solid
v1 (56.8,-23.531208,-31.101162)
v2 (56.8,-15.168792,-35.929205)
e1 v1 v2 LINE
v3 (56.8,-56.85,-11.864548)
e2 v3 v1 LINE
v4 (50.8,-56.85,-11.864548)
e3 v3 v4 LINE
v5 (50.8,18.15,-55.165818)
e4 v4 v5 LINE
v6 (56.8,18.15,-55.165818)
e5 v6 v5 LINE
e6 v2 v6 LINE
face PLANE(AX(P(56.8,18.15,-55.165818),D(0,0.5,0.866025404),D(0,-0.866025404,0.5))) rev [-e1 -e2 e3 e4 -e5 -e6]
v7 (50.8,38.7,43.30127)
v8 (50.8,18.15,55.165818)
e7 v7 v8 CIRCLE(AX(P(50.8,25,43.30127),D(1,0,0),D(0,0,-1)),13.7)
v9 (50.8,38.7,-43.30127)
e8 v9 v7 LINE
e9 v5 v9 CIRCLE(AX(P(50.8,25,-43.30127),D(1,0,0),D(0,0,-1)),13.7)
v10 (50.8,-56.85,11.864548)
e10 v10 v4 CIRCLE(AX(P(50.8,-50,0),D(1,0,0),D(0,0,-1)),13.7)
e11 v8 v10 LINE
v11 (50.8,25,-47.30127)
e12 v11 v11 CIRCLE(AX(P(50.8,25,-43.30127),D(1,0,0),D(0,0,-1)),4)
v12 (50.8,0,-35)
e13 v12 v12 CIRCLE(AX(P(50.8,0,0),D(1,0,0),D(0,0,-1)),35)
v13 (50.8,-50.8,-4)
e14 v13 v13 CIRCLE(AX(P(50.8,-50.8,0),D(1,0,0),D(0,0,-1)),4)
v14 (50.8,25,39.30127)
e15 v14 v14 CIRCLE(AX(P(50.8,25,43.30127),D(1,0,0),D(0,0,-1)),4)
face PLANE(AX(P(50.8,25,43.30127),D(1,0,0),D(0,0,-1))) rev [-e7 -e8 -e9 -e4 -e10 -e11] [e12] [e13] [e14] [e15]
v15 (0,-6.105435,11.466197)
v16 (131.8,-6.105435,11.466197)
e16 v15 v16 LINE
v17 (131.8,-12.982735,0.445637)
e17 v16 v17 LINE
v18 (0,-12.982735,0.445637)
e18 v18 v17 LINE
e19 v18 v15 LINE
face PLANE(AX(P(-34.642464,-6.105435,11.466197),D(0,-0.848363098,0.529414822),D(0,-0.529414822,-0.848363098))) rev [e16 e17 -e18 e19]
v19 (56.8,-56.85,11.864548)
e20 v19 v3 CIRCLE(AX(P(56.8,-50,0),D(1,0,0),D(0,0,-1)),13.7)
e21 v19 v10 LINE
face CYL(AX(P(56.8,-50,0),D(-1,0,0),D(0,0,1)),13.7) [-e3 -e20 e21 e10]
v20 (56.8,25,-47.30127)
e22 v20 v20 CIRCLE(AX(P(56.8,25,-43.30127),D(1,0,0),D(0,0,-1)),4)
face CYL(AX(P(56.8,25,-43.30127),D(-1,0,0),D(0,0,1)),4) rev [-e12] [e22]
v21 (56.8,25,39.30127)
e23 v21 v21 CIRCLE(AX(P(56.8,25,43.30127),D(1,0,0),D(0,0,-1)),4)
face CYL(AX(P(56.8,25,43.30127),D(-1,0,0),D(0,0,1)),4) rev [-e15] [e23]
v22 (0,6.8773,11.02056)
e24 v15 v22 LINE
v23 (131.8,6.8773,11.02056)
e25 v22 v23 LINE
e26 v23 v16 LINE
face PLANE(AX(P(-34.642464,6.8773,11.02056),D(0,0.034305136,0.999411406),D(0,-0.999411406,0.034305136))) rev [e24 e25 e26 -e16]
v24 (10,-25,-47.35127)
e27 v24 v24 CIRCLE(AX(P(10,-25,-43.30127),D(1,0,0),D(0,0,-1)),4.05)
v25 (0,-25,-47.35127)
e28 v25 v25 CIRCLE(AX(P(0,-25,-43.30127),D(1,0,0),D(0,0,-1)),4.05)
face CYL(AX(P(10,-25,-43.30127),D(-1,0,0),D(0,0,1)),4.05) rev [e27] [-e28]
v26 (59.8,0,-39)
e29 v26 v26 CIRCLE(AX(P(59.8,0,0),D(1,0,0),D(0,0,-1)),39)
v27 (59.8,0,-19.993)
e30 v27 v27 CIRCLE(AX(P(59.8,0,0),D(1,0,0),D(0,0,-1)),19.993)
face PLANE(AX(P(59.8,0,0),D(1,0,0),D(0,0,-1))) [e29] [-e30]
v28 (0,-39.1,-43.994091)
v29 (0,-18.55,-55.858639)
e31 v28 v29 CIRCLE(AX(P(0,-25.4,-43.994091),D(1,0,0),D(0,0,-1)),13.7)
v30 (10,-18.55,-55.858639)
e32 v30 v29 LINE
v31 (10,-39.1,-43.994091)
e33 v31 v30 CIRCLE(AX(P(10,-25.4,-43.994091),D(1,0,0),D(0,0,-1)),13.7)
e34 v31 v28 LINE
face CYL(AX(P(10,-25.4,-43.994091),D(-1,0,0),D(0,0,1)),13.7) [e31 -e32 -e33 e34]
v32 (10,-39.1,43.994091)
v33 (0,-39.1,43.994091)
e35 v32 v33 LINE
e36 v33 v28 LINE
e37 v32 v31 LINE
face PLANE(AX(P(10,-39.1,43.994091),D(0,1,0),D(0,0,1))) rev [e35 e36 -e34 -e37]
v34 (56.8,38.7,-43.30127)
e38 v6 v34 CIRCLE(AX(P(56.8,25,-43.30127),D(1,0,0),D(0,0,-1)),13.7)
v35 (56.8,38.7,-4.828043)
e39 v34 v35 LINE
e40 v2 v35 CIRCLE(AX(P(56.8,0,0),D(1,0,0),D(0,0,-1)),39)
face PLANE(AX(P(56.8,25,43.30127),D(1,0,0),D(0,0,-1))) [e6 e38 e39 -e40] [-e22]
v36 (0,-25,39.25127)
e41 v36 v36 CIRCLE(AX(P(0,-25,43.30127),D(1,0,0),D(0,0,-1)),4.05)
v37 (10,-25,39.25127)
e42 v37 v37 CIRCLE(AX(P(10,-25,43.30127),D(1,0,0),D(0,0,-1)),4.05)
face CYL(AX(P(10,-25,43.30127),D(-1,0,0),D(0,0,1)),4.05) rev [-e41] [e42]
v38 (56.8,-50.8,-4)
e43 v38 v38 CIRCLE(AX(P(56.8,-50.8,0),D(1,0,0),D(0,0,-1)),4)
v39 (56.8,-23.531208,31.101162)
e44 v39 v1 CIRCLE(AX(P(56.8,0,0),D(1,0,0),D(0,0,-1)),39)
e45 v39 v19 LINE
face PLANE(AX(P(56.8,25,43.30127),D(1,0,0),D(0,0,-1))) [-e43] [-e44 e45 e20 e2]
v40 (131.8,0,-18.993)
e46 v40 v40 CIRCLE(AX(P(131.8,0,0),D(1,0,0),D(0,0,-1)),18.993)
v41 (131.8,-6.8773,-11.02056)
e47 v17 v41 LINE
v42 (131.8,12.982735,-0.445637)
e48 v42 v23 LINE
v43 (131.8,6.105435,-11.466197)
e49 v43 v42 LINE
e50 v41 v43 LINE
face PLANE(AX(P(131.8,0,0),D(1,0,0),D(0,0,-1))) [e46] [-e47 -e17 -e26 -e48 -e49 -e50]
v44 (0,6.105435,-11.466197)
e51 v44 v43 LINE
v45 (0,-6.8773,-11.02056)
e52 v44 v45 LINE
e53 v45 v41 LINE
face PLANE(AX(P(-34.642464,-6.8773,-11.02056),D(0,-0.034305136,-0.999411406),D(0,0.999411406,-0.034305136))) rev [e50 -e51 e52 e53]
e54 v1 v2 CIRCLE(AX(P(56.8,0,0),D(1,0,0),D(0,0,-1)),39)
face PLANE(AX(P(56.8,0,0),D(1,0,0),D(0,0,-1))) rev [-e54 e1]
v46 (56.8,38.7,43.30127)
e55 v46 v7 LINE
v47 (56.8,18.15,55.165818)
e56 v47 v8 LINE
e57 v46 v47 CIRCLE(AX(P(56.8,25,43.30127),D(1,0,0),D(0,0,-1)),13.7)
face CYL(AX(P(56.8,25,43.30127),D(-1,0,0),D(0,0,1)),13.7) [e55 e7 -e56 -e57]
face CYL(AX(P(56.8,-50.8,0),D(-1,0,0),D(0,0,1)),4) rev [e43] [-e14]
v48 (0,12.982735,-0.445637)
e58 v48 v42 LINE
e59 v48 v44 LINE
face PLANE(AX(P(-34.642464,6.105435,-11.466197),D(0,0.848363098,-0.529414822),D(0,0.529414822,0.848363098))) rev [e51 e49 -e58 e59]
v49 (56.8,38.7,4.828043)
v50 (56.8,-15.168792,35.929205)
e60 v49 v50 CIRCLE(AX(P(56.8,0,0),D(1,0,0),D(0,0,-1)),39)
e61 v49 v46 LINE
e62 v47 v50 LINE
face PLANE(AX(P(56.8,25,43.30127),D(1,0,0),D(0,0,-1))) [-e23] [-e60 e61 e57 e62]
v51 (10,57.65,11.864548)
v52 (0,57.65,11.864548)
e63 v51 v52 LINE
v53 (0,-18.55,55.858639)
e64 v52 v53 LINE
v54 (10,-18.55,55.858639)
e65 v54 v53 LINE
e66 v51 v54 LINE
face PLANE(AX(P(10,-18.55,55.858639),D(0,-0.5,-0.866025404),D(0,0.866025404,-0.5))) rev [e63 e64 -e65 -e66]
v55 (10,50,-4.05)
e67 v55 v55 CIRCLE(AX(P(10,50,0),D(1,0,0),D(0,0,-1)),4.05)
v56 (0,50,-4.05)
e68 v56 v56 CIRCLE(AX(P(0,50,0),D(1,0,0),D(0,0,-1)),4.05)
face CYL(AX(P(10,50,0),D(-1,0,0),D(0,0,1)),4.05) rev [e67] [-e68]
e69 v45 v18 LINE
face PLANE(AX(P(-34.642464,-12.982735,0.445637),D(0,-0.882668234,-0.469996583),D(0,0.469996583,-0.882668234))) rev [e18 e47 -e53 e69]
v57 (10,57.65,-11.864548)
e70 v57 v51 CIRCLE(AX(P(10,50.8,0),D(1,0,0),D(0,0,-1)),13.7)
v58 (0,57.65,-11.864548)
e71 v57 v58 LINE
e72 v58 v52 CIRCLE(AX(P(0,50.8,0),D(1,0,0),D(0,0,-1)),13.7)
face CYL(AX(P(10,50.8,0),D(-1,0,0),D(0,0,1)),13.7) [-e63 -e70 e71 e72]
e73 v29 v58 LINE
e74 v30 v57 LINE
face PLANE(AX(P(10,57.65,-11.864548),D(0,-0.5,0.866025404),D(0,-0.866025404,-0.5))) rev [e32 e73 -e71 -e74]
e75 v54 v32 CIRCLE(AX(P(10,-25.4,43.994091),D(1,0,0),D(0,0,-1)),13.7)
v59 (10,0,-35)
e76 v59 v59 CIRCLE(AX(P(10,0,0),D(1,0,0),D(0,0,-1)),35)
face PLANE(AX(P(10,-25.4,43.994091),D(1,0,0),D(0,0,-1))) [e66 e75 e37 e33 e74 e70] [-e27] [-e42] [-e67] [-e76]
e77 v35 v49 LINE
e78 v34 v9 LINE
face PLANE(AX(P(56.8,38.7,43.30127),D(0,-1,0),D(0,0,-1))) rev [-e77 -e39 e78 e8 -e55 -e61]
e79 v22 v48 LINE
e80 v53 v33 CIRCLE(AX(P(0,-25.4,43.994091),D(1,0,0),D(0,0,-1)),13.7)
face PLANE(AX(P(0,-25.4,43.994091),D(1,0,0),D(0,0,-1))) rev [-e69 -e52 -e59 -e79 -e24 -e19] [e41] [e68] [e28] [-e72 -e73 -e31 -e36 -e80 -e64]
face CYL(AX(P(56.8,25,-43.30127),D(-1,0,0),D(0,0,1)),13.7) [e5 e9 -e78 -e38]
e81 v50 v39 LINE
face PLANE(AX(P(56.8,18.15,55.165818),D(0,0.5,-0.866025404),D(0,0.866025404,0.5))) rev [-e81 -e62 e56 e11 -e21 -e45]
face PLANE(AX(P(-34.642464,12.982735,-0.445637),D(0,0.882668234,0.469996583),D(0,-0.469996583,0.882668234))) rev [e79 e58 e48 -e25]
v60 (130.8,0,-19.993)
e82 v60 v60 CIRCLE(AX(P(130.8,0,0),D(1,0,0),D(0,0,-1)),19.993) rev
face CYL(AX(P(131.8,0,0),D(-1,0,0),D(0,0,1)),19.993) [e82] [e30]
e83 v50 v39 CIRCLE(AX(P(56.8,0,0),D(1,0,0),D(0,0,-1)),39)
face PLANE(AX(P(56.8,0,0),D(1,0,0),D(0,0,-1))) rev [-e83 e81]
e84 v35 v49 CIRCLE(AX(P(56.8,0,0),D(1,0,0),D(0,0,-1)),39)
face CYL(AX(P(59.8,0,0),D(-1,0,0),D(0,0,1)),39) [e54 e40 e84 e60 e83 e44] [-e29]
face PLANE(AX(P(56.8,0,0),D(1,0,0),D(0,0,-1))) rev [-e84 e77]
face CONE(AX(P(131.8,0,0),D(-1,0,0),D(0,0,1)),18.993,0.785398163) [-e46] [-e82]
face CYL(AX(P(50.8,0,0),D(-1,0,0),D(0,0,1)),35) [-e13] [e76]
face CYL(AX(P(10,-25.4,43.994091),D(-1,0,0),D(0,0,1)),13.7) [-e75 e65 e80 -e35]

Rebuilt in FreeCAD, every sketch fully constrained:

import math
import FreeCAD as App
import Part
import Sketcher
Q = App.Units.Quantity


def edges_at(feature, points):
    """Names of the edges that pass closest to the given points."""
    edges = feature.Shape.Edges
    near = lambda p: min(range(len(edges)), key=lambda i: edges[i].distToShape(Part.Vertex(*p))[0])
    return sorted({f"Edge{near(p) + 1}" for p in points})


def add_polygon(sketch, points):
    """Adds a closed chain of lines whose ends are joined by coincident constraints."""
    first, n = sketch.GeometryCount, len(points)
    for a, b in zip(points, points[1:] + points[:1]):
        sketch.addGeometry(Part.LineSegment(App.Vector(*a, 0), App.Vector(*b, 0)), False)
    for i in range(n):
        sketch.addConstraint(Sketcher.Constraint("Coincident", first + i, 2, first + (i + 1) % n, 1))

doc = App.newDocument("Part")
body = doc.addObject("PartDesign::Body", "Body")

# Sketch on YZ plane
sketch1 = body.newObject("Sketcher::SketchObject", "Sketch")
sketch1.AttachmentSupport = (doc.getObject("YZ_Plane"), [""])
sketch1.MapMode = "FlatFace"
sketch1.addGeometry(Part.LineSegment(App.Vector(57.6, 11.9, 0), App.Vector(-18.6, 55.9, 0)), False)
sketch1.addGeometry(Part.ArcOfCircle(Part.Circle(App.Vector(-25.4, 44, 0), App.Vector(0, 0, 1), 13.7), math.radians(60), math.radians(180)), False)
sketch1.addGeometry(Part.LineSegment(App.Vector(-39.1, 44, 0), App.Vector(-39.1, -44, 0)), False)
sketch1.addGeometry(Part.ArcOfCircle(Part.Circle(App.Vector(-25.4, -44, 0), App.Vector(0, 0, 1), 13.7), math.radians(180), math.radians(300)), False)
sketch1.addGeometry(Part.LineSegment(App.Vector(-18.6, -55.9, 0), App.Vector(57.6, -11.9, 0)), False)
sketch1.addGeometry(Part.ArcOfCircle(Part.Circle(App.Vector(50.8, 0, 0), App.Vector(0, 0, 1), 13.7), math.radians(-60), math.radians(60)), False)
sketch1.addGeometry(Part.Circle(App.Vector(-25, -43.3, 0), App.Vector(0, 0, 1), 4), False)
sketch1.addGeometry(Part.Circle(App.Vector(-25, 43.3, 0), App.Vector(0, 0, 1), 4), False)
sketch1.addGeometry(Part.Circle(App.Vector(50, 0, 0), App.Vector(0, 0, 1), 4), False)
sketch1.addConstraint(Sketcher.Constraint("Tangent", 0, 2, 1, 1))
sketch1.addConstraint(Sketcher.Constraint("Tangent", 1, 2, 2, 1))
sketch1.addConstraint(Sketcher.Constraint("Tangent", 2, 2, 3, 1))
sketch1.addConstraint(Sketcher.Constraint("Tangent", 3, 2, 4, 1))
sketch1.addConstraint(Sketcher.Constraint("Tangent", 4, 2, 5, 1))
sketch1.addConstraint(Sketcher.Constraint("Tangent", 5, 2, 0, 1))
sketch1.addConstraint(Sketcher.Constraint("Vertical", 2))
sketch1.addConstraint(Sketcher.Constraint("Equal", 1, 3))
sketch1.addConstraint(Sketcher.Constraint("Equal", 3, 5))
sketch1.addConstraint(Sketcher.Constraint("Equal", 6, 7))
sketch1.addConstraint(Sketcher.Constraint("Equal", 7, 8))
sketch1.addConstraint(Sketcher.Constraint("Symmetric", 6, 3, 7, 3, -1))
sketch1.addConstraint(Sketcher.Constraint("Symmetric", 0, 2, 3, 2, -1))
sketch1.addConstraint(Sketcher.Constraint("PointOnObject", 8, 3, -1))
sketch1.addConstraint(Sketcher.Constraint("Diameter", 6, 8.1))
sketch1.addConstraint(Sketcher.Constraint("Radius", 1, 13.7))
sketch1.addConstraint(Sketcher.Constraint("Angle", 0, Q("150 deg")))
sketch1.addConstraint(Sketcher.Constraint("DistanceX", 6, 3, -1, 1, 25.0))
sketch1.addConstraint(Sketcher.Constraint("DistanceX", -1, 1, 8, 3, 50.0))
sketch1.addConstraint(Sketcher.Constraint("DistanceX", 1, 3, -1, 1, 25.4))
sketch1.addConstraint(Sketcher.Constraint("DistanceX", -1, 1, 5, 3, 50.8))
sketch1.addConstraint(Sketcher.Constraint("DistanceY", 6, 3, -1, 1, 43.30127))
pad1 = body.newObject("PartDesign::Pad", "Pad")
pad1.Profile = sketch1
pad1.Length = 10

# Sketch on YZ plane
sketch2 = body.newObject("Sketcher::SketchObject", "Sketch001")
sketch2.AttachmentSupport = (doc.getObject("YZ_Plane"), [""])
sketch2.MapMode = "FlatFace"
sketch2.AttachmentOffset = App.Placement(App.Vector(0, 0, 10), App.Rotation())
sketch2.addGeometry(Part.Circle(App.Vector(0, 0, 0), App.Vector(0, 0, 1), 35), False)
sketch2.addConstraint(Sketcher.Constraint("Coincident", 0, 3, -1, 1))
sketch2.addConstraint(Sketcher.Constraint("Diameter", 0, 70.0))
pad2 = body.newObject("PartDesign::Pad", "Pad001")
pad2.Profile = sketch2
pad2.Length = 40.8

# Sketch on YZ plane
sketch3 = body.newObject("Sketcher::SketchObject", "Sketch002")
sketch3.AttachmentSupport = (doc.getObject("YZ_Plane"), [""])
sketch3.MapMode = "FlatFace"
sketch3.AttachmentOffset = App.Placement(App.Vector(0, 0, 50.8), App.Rotation())
sketch3.addGeometry(Part.LineSegment(App.Vector(38.7, -43.3, 0), App.Vector(38.7, 43.3, 0)), False)
sketch3.addGeometry(Part.ArcOfCircle(Part.Circle(App.Vector(25, 43.3, 0), App.Vector(0, 0, 1), 13.7), math.radians(0), math.radians(120)), False)
sketch3.addGeometry(Part.LineSegment(App.Vector(18.1, 55.2, 0), App.Vector(-56.9, 11.9, 0)), False)
sketch3.addGeometry(Part.ArcOfCircle(Part.Circle(App.Vector(-50, 0, 0), App.Vector(0, 0, 1), 13.7), math.radians(120), math.radians(240)), False)
sketch3.addGeometry(Part.LineSegment(App.Vector(-56.9, -11.9, 0), App.Vector(18.1, -55.2, 0)), False)
sketch3.addGeometry(Part.ArcOfCircle(Part.Circle(App.Vector(25, -43.3, 0), App.Vector(0, 0, 1), 13.7), math.radians(-120), math.radians(0)), False)
sketch3.addGeometry(Part.Circle(App.Vector(-50.8, 0, 0), App.Vector(0, 0, 1), 4), False)
sketch3.addGeometry(Part.Circle(App.Vector(25, -43.3, 0), App.Vector(0, 0, 1), 4), False)
sketch3.addGeometry(Part.Circle(App.Vector(25, 43.3, 0), App.Vector(0, 0, 1), 4), False)
sketch3.addConstraint(Sketcher.Constraint("Tangent", 0, 2, 1, 1))
sketch3.addConstraint(Sketcher.Constraint("Tangent", 1, 2, 2, 1))
sketch3.addConstraint(Sketcher.Constraint("Tangent", 2, 2, 3, 1))
sketch3.addConstraint(Sketcher.Constraint("Tangent", 3, 2, 4, 1))
sketch3.addConstraint(Sketcher.Constraint("Tangent", 4, 2, 5, 1))
sketch3.addConstraint(Sketcher.Constraint("Tangent", 5, 2, 0, 1))
sketch3.addConstraint(Sketcher.Constraint("Vertical", 0))
sketch3.addConstraint(Sketcher.Constraint("Coincident", 7, 3, 5, 3))
sketch3.addConstraint(Sketcher.Constraint("Coincident", 8, 3, 1, 3))
sketch3.addConstraint(Sketcher.Constraint("Equal", 1, 3))
sketch3.addConstraint(Sketcher.Constraint("Equal", 3, 5))
sketch3.addConstraint(Sketcher.Constraint("Equal", 6, 7))
sketch3.addConstraint(Sketcher.Constraint("Equal", 7, 8))
sketch3.addConstraint(Sketcher.Constraint("Symmetric", 2, 2, 3, 2, -1))
sketch3.addConstraint(Sketcher.Constraint("PointOnObject", 6, 3, -1))
sketch3.addConstraint(Sketcher.Constraint("Diameter", 6, 8.0))
sketch3.addConstraint(Sketcher.Constraint("Radius", 1, 13.7))
sketch3.addConstraint(Sketcher.Constraint("Angle", 2, Q("-150 deg")))
sketch3.addConstraint(Sketcher.Constraint("DistanceX", -1, 1, 1, 3, 25.0))
sketch3.addConstraint(Sketcher.Constraint("DistanceX", 3, 3, -1, 1, 50.0))
sketch3.addConstraint(Sketcher.Constraint("DistanceX", 6, 3, -1, 1, 50.8))
pad3 = body.newObject("PartDesign::Pad", "Pad002")
pad3.Profile = sketch3
pad3.Length = 6

# Sketch on YZ plane
sketch4 = body.newObject("Sketcher::SketchObject", "Sketch003")
sketch4.AttachmentSupport = (doc.getObject("YZ_Plane"), [""])
sketch4.MapMode = "FlatFace"
sketch4.AttachmentOffset = App.Placement(App.Vector(0, 0, 56.8), App.Rotation())
sketch4.addGeometry(Part.Circle(App.Vector(0, 0, 0), App.Vector(0, 0, 1), 20), False)
sketch4.addConstraint(Sketcher.Constraint("Coincident", 0, 3, -1, 1))
sketch4.addConstraint(Sketcher.Constraint("Diameter", 0, 39.986))
pad4 = body.newObject("PartDesign::Pad", "Pad003")
pad4.Profile = sketch4
pad4.Length = 75

# Sketch on YZ plane
sketch5 = body.newObject("Sketcher::SketchObject", "Sketch004")
sketch5.AttachmentSupport = (doc.getObject("YZ_Plane"), [""])
sketch5.MapMode = "FlatFace"
sketch5.AttachmentOffset = App.Placement(App.Vector(0, 0, 56.8), App.Rotation())
sketch5.addGeometry(Part.Circle(App.Vector(0, 0, 0), App.Vector(0, 0, 1), 39), False)
sketch5.addConstraint(Sketcher.Constraint("Coincident", 0, 3, -1, 1))
sketch5.addConstraint(Sketcher.Constraint("Diameter", 0, 78.0))
pad5 = body.newObject("PartDesign::Pad", "Pad004")
pad5.Profile = sketch5
pad5.Length = 3
doc.recompute()

chamfer = body.newObject("PartDesign::Chamfer", "Chamfer")
chamfer.Base = (pad5, edges_at(pad5, [(131.8, 0, 19.993)]))
chamfer.Size = 1

# Sketch on YZ plane
sketch6 = body.newObject("Sketcher::SketchObject", "Sketch005")
sketch6.AttachmentSupport = (doc.getObject("YZ_Plane"), [""])
sketch6.MapMode = "FlatFace"
sketch6.AttachmentOffset = App.Placement(App.Vector(0, 0, 131.8), App.Rotation())
add_polygon(sketch6, [(-6, 11), (-13, 0), (-7, -11), (6, -11), (13, 0), (7, 11)])  # lines 0-5
sketch6.addConstraint(Sketcher.Constraint("Symmetric", 0, 2, 3, 2, -1, 1))
sketch6.addConstraint(Sketcher.Constraint("Symmetric", 1, 2, 4, 2, -1, 1))
sketch6.addConstraint(Sketcher.Constraint("Symmetric", 2, 2, 5, 2, -1, 1))
sketch6.addConstraint(Sketcher.Constraint("Equal", 0, 1))
sketch6.addConstraint(Sketcher.Constraint("Equal", 1, 2))
sketch6.addConstraint(Sketcher.Constraint("DistanceX", 1, 2, -1, 1, 6.8773))
sketch6.addConstraint(Sketcher.Constraint("DistanceX", 2, 2, 3, 2, 6.8773))
sketch6.addConstraint(Sketcher.Constraint("Distance", 0, 12.990381))
sketch6.addConstraint(Sketcher.Constraint("DistanceY", 1, 2, -1, 1, 11.02056))
pocket1 = body.newObject("PartDesign::Pocket", "Pocket")
pocket1.Profile = sketch6
pocket1.Length = 131.8

doc.recompute()
